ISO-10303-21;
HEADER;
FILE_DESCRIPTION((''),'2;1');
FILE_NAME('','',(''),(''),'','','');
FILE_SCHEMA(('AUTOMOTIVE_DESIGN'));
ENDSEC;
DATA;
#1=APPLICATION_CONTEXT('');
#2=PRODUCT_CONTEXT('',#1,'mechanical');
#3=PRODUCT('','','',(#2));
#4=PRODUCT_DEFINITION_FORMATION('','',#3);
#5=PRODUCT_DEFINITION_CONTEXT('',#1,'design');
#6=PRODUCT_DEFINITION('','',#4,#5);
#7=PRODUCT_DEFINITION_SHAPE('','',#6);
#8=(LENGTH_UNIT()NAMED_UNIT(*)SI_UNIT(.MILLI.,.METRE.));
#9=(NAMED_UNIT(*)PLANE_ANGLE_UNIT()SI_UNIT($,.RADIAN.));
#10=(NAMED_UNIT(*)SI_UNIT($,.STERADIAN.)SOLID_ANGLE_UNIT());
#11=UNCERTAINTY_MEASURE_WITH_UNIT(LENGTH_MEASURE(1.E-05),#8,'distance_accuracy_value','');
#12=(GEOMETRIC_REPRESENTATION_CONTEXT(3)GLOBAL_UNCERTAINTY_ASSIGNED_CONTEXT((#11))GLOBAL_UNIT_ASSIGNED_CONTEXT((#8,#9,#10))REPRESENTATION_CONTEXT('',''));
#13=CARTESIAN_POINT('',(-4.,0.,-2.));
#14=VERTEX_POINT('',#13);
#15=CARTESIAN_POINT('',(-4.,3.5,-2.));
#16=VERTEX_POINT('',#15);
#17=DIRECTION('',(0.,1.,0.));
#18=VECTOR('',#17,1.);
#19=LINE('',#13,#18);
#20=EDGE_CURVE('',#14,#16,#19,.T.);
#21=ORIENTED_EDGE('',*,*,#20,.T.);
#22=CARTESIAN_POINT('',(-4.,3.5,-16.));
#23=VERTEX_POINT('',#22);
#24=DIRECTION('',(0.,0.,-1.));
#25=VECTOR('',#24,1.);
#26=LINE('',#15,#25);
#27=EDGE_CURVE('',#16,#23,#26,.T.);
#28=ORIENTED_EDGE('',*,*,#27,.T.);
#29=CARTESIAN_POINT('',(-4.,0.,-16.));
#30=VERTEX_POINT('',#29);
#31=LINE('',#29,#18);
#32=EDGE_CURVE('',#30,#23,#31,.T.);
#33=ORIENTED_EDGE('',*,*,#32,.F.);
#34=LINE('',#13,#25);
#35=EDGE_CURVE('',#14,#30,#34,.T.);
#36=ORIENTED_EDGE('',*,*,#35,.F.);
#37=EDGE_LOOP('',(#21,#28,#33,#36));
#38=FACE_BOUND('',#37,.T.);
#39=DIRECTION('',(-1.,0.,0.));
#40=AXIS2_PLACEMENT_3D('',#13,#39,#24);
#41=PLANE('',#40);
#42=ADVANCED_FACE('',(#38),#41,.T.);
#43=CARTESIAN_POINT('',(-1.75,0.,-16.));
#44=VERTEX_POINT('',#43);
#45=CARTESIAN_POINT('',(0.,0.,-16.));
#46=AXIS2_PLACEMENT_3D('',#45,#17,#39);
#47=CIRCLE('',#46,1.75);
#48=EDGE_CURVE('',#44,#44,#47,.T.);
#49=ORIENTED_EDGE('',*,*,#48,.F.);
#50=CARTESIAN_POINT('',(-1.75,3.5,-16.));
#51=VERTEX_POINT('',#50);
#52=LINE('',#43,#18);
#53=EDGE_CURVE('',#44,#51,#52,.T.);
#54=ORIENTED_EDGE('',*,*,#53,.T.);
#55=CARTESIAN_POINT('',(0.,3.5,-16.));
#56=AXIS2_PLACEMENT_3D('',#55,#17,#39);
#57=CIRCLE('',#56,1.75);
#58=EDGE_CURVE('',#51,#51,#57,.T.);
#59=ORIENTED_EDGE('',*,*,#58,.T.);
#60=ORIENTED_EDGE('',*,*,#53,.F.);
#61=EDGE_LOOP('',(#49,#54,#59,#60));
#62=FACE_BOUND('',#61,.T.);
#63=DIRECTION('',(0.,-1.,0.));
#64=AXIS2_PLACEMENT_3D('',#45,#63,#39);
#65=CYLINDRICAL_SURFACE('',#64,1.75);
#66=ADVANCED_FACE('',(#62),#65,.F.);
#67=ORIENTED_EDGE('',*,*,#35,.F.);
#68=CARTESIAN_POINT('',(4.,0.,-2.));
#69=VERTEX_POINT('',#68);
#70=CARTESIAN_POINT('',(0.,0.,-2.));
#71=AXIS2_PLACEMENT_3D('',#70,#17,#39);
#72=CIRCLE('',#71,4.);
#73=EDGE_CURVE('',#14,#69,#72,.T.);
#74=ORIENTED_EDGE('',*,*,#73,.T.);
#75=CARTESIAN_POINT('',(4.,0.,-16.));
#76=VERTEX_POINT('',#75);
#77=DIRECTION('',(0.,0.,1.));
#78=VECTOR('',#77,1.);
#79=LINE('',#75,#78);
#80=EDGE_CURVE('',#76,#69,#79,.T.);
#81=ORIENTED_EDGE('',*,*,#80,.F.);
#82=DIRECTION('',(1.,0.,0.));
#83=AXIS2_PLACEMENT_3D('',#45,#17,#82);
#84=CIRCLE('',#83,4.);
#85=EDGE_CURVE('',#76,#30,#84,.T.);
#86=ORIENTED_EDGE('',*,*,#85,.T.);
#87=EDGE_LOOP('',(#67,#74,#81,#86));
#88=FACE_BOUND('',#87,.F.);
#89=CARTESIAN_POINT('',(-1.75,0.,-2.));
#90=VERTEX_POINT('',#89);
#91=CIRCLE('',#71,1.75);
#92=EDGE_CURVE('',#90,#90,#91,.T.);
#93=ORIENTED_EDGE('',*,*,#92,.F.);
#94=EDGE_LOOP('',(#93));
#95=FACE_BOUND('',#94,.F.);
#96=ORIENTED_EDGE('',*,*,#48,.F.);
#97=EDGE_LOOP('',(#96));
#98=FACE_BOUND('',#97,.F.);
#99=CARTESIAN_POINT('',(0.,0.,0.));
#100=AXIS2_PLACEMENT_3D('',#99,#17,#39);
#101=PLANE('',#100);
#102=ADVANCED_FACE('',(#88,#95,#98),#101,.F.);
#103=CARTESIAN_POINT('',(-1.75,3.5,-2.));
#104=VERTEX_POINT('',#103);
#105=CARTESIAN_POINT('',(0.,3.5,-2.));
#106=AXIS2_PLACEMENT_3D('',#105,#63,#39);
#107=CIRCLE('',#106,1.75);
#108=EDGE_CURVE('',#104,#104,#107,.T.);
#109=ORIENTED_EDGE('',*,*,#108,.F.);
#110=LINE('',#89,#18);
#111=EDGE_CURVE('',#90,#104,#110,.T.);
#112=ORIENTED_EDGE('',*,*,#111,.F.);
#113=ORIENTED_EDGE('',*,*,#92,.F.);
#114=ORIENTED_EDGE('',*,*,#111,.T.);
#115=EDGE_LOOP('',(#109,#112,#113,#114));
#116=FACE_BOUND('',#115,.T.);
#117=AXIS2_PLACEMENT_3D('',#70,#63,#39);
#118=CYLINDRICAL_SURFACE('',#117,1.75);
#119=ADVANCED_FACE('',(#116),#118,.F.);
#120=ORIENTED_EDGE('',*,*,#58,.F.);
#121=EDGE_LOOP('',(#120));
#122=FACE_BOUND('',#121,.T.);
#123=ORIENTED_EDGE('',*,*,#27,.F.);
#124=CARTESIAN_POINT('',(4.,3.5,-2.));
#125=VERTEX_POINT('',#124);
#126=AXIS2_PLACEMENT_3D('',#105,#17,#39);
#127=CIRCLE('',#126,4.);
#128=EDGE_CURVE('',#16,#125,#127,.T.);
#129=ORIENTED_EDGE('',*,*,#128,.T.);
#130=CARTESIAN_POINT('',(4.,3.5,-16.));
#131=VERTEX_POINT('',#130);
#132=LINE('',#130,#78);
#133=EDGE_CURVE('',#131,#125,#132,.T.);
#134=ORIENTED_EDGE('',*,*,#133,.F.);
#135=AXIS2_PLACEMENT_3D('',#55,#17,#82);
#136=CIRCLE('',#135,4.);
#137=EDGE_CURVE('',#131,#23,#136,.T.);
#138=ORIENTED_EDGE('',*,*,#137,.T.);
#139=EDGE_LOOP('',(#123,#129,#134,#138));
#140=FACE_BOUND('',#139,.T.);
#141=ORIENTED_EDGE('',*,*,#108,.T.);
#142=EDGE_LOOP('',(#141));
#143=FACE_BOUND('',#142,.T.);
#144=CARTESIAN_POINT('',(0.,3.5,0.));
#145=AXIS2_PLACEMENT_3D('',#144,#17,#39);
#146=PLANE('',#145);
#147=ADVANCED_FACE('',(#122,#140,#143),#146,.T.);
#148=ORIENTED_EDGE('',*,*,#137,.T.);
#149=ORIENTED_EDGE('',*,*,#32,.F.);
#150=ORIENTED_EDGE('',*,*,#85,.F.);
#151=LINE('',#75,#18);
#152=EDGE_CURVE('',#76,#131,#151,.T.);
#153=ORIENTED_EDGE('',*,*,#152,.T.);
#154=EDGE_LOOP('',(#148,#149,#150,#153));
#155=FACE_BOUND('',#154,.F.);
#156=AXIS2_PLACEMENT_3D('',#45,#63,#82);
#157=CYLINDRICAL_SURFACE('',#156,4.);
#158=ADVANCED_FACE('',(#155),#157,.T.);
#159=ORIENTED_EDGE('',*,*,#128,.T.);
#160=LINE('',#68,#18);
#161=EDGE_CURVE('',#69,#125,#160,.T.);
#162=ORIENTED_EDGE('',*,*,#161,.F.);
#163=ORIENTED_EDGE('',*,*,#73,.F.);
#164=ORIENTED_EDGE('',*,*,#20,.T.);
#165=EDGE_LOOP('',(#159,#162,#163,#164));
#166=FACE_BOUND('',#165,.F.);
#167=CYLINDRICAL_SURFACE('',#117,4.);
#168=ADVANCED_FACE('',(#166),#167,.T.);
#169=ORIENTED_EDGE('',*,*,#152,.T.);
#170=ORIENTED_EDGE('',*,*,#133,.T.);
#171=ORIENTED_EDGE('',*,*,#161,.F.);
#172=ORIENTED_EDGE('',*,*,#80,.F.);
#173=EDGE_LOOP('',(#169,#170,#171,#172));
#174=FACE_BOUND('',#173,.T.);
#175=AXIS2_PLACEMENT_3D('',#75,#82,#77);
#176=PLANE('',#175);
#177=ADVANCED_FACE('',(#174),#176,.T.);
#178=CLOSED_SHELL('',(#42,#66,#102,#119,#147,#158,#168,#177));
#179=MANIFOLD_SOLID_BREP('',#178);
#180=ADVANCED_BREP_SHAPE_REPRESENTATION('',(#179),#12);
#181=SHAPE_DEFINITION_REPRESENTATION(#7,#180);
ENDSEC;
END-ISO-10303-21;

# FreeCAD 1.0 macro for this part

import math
import FreeCAD as App
import Part
import Sketcher

V = App.Vector
Q = App.Units.Quantity

doc = App.newDocument("Part")
body = doc.addObject("PartDesign::Body", "Body")

# Sketch on XZ plane
sketch1 = doc.addObject("Sketcher::SketchObject", "Sketch")
body.addObject(sketch1)
sketch1.AttachmentSupport = (doc.XZ_Plane, [""])
sketch1.MapMode = "FlatFace"
sketch1.addGeometry([
    Part.LineSegment(V(4, -2, 0), V(4, -16, 0)),
    Part.ArcOfCircle(Part.Circle(V(0, -16, 0), V(0, 0, 1), 4), math.radians(180), math.radians(360)),
    Part.LineSegment(V(-4, -16, 0), V(-4, -2, 0)),
    Part.ArcOfCircle(Part.Circle(V(0, -2, 0), V(0, 0, 1), 4), math.radians(0), math.radians(180)),
], False)
sketch1.addConstraint([
    Sketcher.Constraint("Tangent", 0, 2, 1, 2),
    Sketcher.Constraint("Tangent", 1, 1, 2, 1),
    Sketcher.Constraint("Tangent", 2, 2, 3, 2),
    Sketcher.Constraint("Tangent", 3, 1, 0, 1),
    Sketcher.Constraint("Vertical", 0),
    Sketcher.Constraint("Vertical", 2),
    Sketcher.Constraint("PointOnObject", 1, 3, -2),
    Sketcher.Constraint("Radius", 1, Q("4 mm")),
    Sketcher.Constraint("DistanceY", 0, 2, 0, 1, Q("14 mm")),
    Sketcher.Constraint("DistanceY", 1, 3, -1, 1, Q("16 mm")),
])
pad1 = doc.addObject("PartDesign::Pad", "Pad")
body.addObject(pad1)
pad1.Profile = sketch1
pad1.Length = 3.5
pad1.Reversed = True

# Sketch on XZ plane
sketch2 = doc.addObject("Sketcher::SketchObject", "Sketch001")
body.addObject(sketch2)
sketch2.AttachmentSupport = (doc.XZ_Plane, [""])
sketch2.MapMode = "FlatFace"
sketch2.addGeometry([
    Part.Circle(V(0, -2, 0), V(0, 0, 1), 1.8),
    Part.Circle(V(0, -16, 0), V(0, 0, 1), 1.8),
], False)
sketch2.addConstraint([
    Sketcher.Constraint("Equal", 0, 1),
    Sketcher.Constraint("PointOnObject", 0, 3, -2),
    Sketcher.Constraint("PointOnObject", 1, 3, -2),
    Sketcher.Constraint("Diameter", 0, Q("3.5 mm")),
    Sketcher.Constraint("DistanceY", 0, 3, -1, 1, Q("2 mm")),
    Sketcher.Constraint("DistanceY", 1, 3, -1, 1, Q("16 mm")),
])
pocket1 = doc.addObject("PartDesign::Pocket", "Pocket")
body.addObject(pocket1)
pocket1.Profile = sketch2
pocket1.Length = 3.5

doc.recompute()
